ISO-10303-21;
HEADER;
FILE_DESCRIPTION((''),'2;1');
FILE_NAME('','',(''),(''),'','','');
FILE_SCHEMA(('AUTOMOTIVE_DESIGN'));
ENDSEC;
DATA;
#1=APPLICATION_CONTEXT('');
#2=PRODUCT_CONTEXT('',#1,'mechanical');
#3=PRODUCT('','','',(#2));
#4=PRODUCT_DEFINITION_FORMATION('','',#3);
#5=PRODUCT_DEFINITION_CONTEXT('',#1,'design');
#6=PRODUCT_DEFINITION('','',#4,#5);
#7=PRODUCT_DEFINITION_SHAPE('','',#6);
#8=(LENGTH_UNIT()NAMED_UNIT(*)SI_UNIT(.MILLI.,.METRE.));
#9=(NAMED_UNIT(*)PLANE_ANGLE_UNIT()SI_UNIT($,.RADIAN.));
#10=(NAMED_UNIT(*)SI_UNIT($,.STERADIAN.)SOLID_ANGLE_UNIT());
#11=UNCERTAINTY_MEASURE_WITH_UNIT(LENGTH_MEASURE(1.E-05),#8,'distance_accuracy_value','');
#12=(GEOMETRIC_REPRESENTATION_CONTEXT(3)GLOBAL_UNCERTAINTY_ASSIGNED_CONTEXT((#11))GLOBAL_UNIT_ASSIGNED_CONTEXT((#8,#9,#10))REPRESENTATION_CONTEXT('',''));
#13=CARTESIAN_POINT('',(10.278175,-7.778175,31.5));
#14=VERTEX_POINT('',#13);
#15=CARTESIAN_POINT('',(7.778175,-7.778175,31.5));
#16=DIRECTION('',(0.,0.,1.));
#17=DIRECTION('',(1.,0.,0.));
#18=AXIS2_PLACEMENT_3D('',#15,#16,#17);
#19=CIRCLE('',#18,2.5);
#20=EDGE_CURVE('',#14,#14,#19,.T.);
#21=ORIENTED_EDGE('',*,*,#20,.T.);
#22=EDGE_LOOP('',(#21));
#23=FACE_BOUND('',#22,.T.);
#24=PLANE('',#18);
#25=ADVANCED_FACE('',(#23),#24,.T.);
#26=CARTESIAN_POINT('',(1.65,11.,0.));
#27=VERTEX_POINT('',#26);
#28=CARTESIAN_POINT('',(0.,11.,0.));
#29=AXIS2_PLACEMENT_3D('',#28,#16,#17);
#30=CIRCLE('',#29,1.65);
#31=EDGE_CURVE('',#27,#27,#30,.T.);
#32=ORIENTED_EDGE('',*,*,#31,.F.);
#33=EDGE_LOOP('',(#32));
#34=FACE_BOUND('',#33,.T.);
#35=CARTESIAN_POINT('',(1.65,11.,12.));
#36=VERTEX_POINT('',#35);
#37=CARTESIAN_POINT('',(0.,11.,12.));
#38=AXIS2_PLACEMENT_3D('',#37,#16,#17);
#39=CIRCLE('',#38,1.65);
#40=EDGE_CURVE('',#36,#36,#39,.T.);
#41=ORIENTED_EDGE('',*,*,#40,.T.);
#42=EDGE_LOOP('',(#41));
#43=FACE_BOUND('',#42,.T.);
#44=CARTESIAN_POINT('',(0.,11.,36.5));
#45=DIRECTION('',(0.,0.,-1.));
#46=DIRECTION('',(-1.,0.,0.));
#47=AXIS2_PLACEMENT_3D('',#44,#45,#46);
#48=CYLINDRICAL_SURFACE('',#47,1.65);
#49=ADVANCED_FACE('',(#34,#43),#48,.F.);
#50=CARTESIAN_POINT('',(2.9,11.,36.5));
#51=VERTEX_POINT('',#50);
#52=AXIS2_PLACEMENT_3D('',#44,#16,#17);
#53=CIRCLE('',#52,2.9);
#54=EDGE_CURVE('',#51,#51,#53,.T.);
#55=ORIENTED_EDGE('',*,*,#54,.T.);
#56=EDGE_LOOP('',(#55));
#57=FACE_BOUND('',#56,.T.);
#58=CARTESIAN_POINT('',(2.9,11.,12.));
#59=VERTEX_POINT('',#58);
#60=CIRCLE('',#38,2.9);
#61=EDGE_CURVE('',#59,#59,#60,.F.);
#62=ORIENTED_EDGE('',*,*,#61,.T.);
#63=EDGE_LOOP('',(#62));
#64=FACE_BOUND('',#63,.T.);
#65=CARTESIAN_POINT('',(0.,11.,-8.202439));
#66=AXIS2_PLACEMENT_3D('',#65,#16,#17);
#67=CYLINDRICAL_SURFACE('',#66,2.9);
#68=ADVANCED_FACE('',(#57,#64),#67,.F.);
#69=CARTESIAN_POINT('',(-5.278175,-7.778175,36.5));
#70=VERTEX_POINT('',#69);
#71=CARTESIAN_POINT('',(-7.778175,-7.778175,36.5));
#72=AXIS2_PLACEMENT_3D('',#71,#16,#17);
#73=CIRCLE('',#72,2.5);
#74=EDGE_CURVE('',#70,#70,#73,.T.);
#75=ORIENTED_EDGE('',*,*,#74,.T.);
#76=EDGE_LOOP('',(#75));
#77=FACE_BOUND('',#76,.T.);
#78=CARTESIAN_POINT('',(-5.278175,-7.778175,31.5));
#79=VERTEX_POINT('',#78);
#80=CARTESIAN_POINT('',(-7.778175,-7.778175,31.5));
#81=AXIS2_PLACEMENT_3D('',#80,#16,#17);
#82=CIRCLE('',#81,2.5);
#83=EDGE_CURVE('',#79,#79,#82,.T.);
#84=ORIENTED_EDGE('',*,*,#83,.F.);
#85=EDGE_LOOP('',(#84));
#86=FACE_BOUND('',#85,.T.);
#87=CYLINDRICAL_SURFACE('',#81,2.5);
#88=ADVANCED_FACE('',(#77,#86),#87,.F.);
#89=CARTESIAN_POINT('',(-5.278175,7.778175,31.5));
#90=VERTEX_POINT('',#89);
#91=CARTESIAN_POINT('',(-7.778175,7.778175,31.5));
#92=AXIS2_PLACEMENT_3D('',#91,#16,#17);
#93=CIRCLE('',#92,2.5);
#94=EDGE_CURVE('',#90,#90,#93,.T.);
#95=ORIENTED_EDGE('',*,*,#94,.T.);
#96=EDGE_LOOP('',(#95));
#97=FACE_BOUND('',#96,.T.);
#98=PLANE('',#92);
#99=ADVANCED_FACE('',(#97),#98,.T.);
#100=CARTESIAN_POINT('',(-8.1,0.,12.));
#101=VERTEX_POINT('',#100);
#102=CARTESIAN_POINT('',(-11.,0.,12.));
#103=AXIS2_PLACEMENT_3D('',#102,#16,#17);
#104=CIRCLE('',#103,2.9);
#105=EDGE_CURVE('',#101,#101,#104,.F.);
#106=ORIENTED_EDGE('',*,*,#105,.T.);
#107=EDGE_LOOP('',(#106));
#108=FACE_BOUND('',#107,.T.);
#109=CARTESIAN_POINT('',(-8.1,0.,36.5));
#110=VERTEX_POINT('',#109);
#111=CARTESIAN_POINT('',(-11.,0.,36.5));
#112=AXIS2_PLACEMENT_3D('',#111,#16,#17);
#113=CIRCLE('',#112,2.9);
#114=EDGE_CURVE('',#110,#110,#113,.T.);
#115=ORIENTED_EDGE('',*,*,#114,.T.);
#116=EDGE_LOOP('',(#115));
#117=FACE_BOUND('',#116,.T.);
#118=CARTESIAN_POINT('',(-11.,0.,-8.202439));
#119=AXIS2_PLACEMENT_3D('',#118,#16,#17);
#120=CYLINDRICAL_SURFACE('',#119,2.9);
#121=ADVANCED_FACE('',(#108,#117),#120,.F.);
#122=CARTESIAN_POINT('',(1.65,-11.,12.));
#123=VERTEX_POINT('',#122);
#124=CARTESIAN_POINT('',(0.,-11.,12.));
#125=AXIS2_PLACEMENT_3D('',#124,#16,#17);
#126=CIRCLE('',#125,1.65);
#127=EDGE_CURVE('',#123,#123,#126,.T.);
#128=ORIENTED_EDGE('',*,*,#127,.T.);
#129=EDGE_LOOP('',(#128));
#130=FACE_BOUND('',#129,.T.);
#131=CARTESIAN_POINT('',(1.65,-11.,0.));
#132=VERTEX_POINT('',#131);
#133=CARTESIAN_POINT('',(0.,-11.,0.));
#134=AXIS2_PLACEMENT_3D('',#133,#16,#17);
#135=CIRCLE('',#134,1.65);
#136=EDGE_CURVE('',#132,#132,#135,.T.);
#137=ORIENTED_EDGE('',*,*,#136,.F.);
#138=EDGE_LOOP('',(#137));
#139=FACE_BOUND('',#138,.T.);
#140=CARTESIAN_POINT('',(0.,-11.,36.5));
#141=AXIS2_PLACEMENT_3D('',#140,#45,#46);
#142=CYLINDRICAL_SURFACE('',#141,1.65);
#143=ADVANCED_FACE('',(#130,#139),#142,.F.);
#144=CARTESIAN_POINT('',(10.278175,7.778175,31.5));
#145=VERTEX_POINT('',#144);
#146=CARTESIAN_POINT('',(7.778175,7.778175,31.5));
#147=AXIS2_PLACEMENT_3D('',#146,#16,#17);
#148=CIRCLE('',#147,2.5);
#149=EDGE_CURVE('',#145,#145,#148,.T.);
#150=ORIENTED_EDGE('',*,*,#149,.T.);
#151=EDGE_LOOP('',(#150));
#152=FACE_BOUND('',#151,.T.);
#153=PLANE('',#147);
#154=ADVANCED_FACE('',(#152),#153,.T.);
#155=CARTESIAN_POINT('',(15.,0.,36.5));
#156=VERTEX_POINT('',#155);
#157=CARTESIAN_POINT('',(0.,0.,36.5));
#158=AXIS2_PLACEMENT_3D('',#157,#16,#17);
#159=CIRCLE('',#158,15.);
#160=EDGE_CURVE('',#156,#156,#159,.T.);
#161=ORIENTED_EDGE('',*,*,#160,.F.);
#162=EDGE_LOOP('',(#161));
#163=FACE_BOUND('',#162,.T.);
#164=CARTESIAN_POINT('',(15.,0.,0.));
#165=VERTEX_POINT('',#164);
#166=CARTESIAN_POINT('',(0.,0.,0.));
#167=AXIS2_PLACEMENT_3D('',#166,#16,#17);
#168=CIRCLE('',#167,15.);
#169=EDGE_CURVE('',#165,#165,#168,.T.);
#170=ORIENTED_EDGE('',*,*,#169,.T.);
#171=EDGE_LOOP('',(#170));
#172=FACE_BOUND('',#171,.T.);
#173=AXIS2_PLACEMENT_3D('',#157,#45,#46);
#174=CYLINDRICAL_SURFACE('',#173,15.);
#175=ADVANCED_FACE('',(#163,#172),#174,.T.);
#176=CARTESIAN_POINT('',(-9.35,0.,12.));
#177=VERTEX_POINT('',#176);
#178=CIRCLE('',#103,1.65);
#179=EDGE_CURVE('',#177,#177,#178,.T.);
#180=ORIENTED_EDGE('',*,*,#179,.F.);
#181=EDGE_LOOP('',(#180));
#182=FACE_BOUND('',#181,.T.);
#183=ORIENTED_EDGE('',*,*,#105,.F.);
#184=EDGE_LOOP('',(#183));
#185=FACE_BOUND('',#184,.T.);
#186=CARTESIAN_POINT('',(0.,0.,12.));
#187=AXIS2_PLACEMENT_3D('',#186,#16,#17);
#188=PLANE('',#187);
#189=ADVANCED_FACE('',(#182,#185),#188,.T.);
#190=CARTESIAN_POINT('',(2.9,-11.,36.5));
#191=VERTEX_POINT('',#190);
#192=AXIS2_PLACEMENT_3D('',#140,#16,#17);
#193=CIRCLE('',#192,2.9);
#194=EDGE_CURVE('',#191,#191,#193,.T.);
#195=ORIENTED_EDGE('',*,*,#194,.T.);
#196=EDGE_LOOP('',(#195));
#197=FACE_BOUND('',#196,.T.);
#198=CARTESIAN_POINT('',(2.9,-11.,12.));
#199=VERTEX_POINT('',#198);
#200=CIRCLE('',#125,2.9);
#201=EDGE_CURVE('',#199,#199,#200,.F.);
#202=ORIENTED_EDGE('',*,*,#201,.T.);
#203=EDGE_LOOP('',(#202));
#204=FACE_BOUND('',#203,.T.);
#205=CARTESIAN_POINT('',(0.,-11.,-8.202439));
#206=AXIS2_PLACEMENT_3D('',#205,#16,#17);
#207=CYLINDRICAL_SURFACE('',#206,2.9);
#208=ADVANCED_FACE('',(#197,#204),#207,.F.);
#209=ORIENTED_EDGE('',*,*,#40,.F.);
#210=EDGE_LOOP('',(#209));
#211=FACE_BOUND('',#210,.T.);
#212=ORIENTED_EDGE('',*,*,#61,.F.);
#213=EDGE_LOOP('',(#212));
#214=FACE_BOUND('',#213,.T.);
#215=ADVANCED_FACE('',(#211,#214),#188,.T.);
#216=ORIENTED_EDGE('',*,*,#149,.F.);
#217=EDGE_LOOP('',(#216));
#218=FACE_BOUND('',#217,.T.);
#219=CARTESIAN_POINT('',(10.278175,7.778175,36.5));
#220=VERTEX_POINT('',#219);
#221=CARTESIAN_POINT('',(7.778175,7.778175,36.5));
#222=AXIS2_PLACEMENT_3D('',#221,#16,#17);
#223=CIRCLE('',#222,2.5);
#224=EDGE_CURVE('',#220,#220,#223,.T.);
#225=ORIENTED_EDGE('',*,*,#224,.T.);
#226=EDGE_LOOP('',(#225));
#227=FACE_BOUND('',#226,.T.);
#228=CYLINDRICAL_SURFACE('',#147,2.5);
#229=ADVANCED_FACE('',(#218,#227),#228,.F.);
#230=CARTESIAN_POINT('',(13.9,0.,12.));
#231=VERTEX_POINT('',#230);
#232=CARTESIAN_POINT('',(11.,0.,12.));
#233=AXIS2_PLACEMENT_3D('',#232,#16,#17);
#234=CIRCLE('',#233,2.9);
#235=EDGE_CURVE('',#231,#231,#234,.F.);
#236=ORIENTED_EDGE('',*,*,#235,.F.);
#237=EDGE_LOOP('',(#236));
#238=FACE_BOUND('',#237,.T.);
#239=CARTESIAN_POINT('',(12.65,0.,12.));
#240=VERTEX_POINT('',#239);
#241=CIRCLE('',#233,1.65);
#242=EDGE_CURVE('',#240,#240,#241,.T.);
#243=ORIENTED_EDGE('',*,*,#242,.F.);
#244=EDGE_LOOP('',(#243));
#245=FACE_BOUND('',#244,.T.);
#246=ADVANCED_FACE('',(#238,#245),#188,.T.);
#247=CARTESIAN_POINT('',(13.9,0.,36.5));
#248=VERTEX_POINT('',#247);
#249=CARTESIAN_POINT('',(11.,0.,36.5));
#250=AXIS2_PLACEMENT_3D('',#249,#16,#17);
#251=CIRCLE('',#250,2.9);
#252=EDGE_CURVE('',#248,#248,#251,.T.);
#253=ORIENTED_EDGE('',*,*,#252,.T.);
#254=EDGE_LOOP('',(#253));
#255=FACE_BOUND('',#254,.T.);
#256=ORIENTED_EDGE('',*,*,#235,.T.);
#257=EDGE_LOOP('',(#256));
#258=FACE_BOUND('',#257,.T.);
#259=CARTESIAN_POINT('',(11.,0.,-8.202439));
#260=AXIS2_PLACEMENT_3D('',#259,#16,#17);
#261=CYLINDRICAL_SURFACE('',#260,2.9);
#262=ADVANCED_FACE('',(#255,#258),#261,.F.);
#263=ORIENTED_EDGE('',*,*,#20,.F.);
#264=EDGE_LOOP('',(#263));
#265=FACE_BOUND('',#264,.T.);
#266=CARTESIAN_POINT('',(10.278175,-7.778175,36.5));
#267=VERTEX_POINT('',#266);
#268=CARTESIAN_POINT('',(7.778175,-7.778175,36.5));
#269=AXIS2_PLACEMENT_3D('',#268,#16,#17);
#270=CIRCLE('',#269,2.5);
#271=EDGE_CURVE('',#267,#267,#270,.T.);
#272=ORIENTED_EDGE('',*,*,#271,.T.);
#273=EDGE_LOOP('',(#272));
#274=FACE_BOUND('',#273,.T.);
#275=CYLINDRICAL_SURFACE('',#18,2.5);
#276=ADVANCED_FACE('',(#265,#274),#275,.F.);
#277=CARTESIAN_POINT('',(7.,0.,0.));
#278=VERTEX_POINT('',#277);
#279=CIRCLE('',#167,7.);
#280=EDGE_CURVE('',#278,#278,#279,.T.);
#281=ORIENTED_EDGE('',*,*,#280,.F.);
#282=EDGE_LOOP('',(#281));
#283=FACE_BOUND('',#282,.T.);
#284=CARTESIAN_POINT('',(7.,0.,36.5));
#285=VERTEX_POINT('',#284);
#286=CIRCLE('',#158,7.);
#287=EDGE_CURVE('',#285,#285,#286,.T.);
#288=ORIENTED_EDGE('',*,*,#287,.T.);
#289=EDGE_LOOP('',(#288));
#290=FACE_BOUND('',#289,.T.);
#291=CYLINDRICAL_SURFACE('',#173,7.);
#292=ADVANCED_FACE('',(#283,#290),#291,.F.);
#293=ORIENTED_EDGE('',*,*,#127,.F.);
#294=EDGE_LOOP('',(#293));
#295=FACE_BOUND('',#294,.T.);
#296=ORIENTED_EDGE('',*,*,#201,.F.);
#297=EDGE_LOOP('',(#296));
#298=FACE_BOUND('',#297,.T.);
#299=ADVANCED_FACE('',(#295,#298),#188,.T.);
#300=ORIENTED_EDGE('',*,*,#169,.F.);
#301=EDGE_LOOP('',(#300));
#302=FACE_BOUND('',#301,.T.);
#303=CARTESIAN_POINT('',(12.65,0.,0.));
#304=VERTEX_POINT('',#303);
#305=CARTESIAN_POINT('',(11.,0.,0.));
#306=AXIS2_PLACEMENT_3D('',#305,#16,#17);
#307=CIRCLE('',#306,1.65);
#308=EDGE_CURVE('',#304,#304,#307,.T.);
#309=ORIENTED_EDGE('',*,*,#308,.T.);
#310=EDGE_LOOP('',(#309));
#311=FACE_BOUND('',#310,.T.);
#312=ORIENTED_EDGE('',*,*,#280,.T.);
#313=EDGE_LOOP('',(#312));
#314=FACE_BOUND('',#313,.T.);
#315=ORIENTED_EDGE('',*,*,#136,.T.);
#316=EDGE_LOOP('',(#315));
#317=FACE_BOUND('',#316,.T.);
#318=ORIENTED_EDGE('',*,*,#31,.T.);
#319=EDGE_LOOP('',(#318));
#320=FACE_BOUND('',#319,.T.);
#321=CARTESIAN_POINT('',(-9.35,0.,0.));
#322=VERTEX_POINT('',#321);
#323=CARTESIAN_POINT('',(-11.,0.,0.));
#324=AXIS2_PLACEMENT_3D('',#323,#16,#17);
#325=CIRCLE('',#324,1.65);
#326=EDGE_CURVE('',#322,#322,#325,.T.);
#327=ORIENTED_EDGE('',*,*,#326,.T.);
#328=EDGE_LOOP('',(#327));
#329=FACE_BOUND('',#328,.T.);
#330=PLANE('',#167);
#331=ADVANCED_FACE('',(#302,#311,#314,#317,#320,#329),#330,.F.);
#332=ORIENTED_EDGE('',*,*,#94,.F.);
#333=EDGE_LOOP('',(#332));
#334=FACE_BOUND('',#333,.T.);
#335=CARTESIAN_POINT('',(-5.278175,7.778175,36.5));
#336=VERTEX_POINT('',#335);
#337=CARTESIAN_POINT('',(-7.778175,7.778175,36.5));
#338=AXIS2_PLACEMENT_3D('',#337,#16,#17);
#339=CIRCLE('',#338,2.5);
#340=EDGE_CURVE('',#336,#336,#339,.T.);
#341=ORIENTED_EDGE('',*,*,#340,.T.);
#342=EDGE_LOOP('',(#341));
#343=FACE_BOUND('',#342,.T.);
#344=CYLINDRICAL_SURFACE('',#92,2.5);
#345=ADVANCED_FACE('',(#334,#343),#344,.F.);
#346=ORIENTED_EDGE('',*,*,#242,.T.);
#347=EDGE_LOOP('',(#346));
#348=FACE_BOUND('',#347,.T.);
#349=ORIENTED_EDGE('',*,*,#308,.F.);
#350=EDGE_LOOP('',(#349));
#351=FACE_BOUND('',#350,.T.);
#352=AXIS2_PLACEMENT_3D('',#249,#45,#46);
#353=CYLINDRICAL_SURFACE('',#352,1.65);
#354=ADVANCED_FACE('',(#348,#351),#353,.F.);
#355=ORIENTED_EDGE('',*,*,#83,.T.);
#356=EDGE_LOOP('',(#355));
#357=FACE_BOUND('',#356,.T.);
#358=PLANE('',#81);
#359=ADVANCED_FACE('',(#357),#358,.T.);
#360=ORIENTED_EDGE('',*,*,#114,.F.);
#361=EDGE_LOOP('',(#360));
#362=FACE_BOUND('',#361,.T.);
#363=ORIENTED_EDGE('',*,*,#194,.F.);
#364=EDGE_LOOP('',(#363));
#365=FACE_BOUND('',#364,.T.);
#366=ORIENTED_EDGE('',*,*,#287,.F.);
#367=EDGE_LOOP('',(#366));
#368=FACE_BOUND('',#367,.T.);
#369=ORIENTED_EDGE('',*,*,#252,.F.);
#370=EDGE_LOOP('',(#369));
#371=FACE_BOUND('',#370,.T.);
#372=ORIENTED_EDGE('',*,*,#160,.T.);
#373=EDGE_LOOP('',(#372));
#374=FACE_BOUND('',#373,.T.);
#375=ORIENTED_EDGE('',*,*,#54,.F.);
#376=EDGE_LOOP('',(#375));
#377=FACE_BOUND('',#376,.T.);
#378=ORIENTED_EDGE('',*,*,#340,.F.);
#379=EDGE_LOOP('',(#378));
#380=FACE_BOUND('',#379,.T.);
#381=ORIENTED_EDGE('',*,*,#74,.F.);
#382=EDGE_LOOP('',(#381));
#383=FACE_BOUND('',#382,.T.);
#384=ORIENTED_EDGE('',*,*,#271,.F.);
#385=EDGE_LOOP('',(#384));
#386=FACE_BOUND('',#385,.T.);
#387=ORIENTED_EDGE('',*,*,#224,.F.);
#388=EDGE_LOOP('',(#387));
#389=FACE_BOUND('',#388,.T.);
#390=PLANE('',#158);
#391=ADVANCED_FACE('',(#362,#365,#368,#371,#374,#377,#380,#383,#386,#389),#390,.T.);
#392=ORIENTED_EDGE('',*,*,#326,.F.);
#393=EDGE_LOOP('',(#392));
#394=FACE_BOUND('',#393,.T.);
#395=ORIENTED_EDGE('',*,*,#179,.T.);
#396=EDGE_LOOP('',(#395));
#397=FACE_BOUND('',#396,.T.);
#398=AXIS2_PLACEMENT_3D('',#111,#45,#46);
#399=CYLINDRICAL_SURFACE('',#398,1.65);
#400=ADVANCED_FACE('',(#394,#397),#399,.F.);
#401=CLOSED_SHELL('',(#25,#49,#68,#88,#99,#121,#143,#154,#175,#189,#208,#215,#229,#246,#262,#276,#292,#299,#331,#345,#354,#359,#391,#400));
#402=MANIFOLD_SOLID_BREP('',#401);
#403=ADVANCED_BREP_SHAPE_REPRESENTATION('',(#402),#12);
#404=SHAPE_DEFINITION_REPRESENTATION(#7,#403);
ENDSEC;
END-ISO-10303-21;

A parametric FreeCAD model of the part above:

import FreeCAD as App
import Part
import Sketcher
from FreeCAD import Vector

doc = App.newDocument("Part")
body = doc.addObject("PartDesign::Body", "Body")

sketch1 = body.newObject("Sketcher::SketchObject", "Sketch")
sketch1.AttachmentSupport = (doc.getObject("XY_Plane"), [""])
sketch1.MapMode = "FlatFace"
sketch1.addGeometry([
    Part.Circle(Vector(0, 0, 0), Vector(0, 0, 1), 15),
    Part.Circle(Vector(0, -11, 0), Vector(0, 0, 1), 1.6),
    Part.Circle(Vector(-11, 0, 0), Vector(0, 0, 1), 1.6),
    Part.Circle(Vector(0, 0, 0), Vector(0, 0, 1), 7),
    Part.Circle(Vector(11, 0, 0), Vector(0, 0, 1), 1.6),
    Part.Circle(Vector(0, 11, 0), Vector(0, 0, 1), 1.6),
], False)
sketch1.addConstraint([
    Sketcher.Constraint("Coincident", 0, 3, -1, 1),
    Sketcher.Constraint("Coincident", 3, 3, -1, 1),
    Sketcher.Constraint("Equal", 1, 2),
    Sketcher.Constraint("Equal", 2, 4),
    Sketcher.Constraint("Equal", 4, 5),
    Sketcher.Constraint("Symmetric", 2, 3, 4, 3, -1, 1),
    Sketcher.Constraint("Symmetric", 1, 3, 5, 3, -1, 1),
    Sketcher.Constraint("PointOnObject", 1, 3, -2),
    Sketcher.Constraint("PointOnObject", 2, 3, -1),
    Sketcher.Constraint("Diameter", 0, 30.0),
    Sketcher.Constraint("Diameter", 3, 14.0),
    Sketcher.Constraint("Diameter", 1, 3.3),
    Sketcher.Constraint("DistanceY", 1, 3, -1, 1, 11.0),
    Sketcher.Constraint("DistanceX", 2, 3, -1, 1, 11.0),
])
pad1 = body.newObject("PartDesign::Pad", "Pad")
pad1.Profile = sketch1
pad1.Length = 36.5

sketch2 = body.newObject("Sketcher::SketchObject", "Sketch001")
sketch2.AttachmentSupport = (doc.getObject("XY_Plane"), [""])
sketch2.MapMode = "FlatFace"
sketch2.AttachmentOffset = App.Placement(Vector(0, 0, 36.5), App.Rotation())
sketch2.addGeometry([
    Part.Circle(Vector(-11, 0, 0), Vector(0, 0, 1), 2.9),
    Part.Circle(Vector(0, 11, 0), Vector(0, 0, 1), 2.9),
    Part.Circle(Vector(11, 0, 0), Vector(0, 0, 1), 2.9),
    Part.Circle(Vector(0, -11, 0), Vector(0, 0, 1), 2.9),
], False)
sketch2.addConstraint([
    Sketcher.Constraint("Equal", 0, 1),
    Sketcher.Constraint("Equal", 1, 2),
    Sketcher.Constraint("Equal", 2, 3),
    Sketcher.Constraint("Symmetric", 0, 3, 2, 3, -1, 1),
    Sketcher.Constraint("Symmetric", 1, 3, 3, 3, -1, 1),
    Sketcher.Constraint("PointOnObject", 0, 3, -1),
    Sketcher.Constraint("PointOnObject", 1, 3, -2),
    Sketcher.Constraint("Diameter", 0, 5.8),
    Sketcher.Constraint("DistanceX", 0, 3, -1, 1, 11.0),
    Sketcher.Constraint("DistanceY", -1, 1, 1, 3, 11.0),
])
pocket1 = body.newObject("PartDesign::Pocket", "Pocket")
pocket1.Profile = sketch2
pocket1.Length = 24.5

sketch3 = body.newObject("Sketcher::SketchObject", "Sketch002")
sketch3.AttachmentSupport = (doc.getObject("XY_Plane"), [""])
sketch3.MapMode = "FlatFace"
sketch3.AttachmentOffset = App.Placement(Vector(0, 0, 36.5), App.Rotation())
sketch3.addGeometry([
    Part.Circle(Vector(-7.8, 7.8, 0), Vector(0, 0, 1), 2.5),
    Part.Circle(Vector(7.8, 7.8, 0), Vector(0, 0, 1), 2.5),
    Part.Circle(Vector(7.8, -7.8, 0), Vector(0, 0, 1), 2.5),
    Part.Circle(Vector(-7.8, -7.8, 0), Vector(0, 0, 1), 2.5),
], False)
sketch3.addConstraint([
    Sketcher.Constraint("Equal", 0, 1),
    Sketcher.Constraint("Equal", 1, 2),
    Sketcher.Constraint("Equal", 2, 3),
    Sketcher.Constraint("Symmetric", 0, 3, 2, 3, -1, 1),
    Sketcher.Constraint("Symmetric", 1, 3, 3, 3, -1, 1),
    Sketcher.Constraint("Symmetric", 0, 3, 1, 3, -2),
    Sketcher.Constraint("Diameter", 0, 5.0),
    Sketcher.Constraint("DistanceX", 0, 3, 1, 3, 15.556349),
    Sketcher.Constraint("DistanceY", 2, 3, 1, 3, 15.556349),
])
pocket2 = body.newObject("PartDesign::Pocket", "Pocket001")
pocket2.Profile = sketch3
pocket2.Length = 5

doc.recompute()
